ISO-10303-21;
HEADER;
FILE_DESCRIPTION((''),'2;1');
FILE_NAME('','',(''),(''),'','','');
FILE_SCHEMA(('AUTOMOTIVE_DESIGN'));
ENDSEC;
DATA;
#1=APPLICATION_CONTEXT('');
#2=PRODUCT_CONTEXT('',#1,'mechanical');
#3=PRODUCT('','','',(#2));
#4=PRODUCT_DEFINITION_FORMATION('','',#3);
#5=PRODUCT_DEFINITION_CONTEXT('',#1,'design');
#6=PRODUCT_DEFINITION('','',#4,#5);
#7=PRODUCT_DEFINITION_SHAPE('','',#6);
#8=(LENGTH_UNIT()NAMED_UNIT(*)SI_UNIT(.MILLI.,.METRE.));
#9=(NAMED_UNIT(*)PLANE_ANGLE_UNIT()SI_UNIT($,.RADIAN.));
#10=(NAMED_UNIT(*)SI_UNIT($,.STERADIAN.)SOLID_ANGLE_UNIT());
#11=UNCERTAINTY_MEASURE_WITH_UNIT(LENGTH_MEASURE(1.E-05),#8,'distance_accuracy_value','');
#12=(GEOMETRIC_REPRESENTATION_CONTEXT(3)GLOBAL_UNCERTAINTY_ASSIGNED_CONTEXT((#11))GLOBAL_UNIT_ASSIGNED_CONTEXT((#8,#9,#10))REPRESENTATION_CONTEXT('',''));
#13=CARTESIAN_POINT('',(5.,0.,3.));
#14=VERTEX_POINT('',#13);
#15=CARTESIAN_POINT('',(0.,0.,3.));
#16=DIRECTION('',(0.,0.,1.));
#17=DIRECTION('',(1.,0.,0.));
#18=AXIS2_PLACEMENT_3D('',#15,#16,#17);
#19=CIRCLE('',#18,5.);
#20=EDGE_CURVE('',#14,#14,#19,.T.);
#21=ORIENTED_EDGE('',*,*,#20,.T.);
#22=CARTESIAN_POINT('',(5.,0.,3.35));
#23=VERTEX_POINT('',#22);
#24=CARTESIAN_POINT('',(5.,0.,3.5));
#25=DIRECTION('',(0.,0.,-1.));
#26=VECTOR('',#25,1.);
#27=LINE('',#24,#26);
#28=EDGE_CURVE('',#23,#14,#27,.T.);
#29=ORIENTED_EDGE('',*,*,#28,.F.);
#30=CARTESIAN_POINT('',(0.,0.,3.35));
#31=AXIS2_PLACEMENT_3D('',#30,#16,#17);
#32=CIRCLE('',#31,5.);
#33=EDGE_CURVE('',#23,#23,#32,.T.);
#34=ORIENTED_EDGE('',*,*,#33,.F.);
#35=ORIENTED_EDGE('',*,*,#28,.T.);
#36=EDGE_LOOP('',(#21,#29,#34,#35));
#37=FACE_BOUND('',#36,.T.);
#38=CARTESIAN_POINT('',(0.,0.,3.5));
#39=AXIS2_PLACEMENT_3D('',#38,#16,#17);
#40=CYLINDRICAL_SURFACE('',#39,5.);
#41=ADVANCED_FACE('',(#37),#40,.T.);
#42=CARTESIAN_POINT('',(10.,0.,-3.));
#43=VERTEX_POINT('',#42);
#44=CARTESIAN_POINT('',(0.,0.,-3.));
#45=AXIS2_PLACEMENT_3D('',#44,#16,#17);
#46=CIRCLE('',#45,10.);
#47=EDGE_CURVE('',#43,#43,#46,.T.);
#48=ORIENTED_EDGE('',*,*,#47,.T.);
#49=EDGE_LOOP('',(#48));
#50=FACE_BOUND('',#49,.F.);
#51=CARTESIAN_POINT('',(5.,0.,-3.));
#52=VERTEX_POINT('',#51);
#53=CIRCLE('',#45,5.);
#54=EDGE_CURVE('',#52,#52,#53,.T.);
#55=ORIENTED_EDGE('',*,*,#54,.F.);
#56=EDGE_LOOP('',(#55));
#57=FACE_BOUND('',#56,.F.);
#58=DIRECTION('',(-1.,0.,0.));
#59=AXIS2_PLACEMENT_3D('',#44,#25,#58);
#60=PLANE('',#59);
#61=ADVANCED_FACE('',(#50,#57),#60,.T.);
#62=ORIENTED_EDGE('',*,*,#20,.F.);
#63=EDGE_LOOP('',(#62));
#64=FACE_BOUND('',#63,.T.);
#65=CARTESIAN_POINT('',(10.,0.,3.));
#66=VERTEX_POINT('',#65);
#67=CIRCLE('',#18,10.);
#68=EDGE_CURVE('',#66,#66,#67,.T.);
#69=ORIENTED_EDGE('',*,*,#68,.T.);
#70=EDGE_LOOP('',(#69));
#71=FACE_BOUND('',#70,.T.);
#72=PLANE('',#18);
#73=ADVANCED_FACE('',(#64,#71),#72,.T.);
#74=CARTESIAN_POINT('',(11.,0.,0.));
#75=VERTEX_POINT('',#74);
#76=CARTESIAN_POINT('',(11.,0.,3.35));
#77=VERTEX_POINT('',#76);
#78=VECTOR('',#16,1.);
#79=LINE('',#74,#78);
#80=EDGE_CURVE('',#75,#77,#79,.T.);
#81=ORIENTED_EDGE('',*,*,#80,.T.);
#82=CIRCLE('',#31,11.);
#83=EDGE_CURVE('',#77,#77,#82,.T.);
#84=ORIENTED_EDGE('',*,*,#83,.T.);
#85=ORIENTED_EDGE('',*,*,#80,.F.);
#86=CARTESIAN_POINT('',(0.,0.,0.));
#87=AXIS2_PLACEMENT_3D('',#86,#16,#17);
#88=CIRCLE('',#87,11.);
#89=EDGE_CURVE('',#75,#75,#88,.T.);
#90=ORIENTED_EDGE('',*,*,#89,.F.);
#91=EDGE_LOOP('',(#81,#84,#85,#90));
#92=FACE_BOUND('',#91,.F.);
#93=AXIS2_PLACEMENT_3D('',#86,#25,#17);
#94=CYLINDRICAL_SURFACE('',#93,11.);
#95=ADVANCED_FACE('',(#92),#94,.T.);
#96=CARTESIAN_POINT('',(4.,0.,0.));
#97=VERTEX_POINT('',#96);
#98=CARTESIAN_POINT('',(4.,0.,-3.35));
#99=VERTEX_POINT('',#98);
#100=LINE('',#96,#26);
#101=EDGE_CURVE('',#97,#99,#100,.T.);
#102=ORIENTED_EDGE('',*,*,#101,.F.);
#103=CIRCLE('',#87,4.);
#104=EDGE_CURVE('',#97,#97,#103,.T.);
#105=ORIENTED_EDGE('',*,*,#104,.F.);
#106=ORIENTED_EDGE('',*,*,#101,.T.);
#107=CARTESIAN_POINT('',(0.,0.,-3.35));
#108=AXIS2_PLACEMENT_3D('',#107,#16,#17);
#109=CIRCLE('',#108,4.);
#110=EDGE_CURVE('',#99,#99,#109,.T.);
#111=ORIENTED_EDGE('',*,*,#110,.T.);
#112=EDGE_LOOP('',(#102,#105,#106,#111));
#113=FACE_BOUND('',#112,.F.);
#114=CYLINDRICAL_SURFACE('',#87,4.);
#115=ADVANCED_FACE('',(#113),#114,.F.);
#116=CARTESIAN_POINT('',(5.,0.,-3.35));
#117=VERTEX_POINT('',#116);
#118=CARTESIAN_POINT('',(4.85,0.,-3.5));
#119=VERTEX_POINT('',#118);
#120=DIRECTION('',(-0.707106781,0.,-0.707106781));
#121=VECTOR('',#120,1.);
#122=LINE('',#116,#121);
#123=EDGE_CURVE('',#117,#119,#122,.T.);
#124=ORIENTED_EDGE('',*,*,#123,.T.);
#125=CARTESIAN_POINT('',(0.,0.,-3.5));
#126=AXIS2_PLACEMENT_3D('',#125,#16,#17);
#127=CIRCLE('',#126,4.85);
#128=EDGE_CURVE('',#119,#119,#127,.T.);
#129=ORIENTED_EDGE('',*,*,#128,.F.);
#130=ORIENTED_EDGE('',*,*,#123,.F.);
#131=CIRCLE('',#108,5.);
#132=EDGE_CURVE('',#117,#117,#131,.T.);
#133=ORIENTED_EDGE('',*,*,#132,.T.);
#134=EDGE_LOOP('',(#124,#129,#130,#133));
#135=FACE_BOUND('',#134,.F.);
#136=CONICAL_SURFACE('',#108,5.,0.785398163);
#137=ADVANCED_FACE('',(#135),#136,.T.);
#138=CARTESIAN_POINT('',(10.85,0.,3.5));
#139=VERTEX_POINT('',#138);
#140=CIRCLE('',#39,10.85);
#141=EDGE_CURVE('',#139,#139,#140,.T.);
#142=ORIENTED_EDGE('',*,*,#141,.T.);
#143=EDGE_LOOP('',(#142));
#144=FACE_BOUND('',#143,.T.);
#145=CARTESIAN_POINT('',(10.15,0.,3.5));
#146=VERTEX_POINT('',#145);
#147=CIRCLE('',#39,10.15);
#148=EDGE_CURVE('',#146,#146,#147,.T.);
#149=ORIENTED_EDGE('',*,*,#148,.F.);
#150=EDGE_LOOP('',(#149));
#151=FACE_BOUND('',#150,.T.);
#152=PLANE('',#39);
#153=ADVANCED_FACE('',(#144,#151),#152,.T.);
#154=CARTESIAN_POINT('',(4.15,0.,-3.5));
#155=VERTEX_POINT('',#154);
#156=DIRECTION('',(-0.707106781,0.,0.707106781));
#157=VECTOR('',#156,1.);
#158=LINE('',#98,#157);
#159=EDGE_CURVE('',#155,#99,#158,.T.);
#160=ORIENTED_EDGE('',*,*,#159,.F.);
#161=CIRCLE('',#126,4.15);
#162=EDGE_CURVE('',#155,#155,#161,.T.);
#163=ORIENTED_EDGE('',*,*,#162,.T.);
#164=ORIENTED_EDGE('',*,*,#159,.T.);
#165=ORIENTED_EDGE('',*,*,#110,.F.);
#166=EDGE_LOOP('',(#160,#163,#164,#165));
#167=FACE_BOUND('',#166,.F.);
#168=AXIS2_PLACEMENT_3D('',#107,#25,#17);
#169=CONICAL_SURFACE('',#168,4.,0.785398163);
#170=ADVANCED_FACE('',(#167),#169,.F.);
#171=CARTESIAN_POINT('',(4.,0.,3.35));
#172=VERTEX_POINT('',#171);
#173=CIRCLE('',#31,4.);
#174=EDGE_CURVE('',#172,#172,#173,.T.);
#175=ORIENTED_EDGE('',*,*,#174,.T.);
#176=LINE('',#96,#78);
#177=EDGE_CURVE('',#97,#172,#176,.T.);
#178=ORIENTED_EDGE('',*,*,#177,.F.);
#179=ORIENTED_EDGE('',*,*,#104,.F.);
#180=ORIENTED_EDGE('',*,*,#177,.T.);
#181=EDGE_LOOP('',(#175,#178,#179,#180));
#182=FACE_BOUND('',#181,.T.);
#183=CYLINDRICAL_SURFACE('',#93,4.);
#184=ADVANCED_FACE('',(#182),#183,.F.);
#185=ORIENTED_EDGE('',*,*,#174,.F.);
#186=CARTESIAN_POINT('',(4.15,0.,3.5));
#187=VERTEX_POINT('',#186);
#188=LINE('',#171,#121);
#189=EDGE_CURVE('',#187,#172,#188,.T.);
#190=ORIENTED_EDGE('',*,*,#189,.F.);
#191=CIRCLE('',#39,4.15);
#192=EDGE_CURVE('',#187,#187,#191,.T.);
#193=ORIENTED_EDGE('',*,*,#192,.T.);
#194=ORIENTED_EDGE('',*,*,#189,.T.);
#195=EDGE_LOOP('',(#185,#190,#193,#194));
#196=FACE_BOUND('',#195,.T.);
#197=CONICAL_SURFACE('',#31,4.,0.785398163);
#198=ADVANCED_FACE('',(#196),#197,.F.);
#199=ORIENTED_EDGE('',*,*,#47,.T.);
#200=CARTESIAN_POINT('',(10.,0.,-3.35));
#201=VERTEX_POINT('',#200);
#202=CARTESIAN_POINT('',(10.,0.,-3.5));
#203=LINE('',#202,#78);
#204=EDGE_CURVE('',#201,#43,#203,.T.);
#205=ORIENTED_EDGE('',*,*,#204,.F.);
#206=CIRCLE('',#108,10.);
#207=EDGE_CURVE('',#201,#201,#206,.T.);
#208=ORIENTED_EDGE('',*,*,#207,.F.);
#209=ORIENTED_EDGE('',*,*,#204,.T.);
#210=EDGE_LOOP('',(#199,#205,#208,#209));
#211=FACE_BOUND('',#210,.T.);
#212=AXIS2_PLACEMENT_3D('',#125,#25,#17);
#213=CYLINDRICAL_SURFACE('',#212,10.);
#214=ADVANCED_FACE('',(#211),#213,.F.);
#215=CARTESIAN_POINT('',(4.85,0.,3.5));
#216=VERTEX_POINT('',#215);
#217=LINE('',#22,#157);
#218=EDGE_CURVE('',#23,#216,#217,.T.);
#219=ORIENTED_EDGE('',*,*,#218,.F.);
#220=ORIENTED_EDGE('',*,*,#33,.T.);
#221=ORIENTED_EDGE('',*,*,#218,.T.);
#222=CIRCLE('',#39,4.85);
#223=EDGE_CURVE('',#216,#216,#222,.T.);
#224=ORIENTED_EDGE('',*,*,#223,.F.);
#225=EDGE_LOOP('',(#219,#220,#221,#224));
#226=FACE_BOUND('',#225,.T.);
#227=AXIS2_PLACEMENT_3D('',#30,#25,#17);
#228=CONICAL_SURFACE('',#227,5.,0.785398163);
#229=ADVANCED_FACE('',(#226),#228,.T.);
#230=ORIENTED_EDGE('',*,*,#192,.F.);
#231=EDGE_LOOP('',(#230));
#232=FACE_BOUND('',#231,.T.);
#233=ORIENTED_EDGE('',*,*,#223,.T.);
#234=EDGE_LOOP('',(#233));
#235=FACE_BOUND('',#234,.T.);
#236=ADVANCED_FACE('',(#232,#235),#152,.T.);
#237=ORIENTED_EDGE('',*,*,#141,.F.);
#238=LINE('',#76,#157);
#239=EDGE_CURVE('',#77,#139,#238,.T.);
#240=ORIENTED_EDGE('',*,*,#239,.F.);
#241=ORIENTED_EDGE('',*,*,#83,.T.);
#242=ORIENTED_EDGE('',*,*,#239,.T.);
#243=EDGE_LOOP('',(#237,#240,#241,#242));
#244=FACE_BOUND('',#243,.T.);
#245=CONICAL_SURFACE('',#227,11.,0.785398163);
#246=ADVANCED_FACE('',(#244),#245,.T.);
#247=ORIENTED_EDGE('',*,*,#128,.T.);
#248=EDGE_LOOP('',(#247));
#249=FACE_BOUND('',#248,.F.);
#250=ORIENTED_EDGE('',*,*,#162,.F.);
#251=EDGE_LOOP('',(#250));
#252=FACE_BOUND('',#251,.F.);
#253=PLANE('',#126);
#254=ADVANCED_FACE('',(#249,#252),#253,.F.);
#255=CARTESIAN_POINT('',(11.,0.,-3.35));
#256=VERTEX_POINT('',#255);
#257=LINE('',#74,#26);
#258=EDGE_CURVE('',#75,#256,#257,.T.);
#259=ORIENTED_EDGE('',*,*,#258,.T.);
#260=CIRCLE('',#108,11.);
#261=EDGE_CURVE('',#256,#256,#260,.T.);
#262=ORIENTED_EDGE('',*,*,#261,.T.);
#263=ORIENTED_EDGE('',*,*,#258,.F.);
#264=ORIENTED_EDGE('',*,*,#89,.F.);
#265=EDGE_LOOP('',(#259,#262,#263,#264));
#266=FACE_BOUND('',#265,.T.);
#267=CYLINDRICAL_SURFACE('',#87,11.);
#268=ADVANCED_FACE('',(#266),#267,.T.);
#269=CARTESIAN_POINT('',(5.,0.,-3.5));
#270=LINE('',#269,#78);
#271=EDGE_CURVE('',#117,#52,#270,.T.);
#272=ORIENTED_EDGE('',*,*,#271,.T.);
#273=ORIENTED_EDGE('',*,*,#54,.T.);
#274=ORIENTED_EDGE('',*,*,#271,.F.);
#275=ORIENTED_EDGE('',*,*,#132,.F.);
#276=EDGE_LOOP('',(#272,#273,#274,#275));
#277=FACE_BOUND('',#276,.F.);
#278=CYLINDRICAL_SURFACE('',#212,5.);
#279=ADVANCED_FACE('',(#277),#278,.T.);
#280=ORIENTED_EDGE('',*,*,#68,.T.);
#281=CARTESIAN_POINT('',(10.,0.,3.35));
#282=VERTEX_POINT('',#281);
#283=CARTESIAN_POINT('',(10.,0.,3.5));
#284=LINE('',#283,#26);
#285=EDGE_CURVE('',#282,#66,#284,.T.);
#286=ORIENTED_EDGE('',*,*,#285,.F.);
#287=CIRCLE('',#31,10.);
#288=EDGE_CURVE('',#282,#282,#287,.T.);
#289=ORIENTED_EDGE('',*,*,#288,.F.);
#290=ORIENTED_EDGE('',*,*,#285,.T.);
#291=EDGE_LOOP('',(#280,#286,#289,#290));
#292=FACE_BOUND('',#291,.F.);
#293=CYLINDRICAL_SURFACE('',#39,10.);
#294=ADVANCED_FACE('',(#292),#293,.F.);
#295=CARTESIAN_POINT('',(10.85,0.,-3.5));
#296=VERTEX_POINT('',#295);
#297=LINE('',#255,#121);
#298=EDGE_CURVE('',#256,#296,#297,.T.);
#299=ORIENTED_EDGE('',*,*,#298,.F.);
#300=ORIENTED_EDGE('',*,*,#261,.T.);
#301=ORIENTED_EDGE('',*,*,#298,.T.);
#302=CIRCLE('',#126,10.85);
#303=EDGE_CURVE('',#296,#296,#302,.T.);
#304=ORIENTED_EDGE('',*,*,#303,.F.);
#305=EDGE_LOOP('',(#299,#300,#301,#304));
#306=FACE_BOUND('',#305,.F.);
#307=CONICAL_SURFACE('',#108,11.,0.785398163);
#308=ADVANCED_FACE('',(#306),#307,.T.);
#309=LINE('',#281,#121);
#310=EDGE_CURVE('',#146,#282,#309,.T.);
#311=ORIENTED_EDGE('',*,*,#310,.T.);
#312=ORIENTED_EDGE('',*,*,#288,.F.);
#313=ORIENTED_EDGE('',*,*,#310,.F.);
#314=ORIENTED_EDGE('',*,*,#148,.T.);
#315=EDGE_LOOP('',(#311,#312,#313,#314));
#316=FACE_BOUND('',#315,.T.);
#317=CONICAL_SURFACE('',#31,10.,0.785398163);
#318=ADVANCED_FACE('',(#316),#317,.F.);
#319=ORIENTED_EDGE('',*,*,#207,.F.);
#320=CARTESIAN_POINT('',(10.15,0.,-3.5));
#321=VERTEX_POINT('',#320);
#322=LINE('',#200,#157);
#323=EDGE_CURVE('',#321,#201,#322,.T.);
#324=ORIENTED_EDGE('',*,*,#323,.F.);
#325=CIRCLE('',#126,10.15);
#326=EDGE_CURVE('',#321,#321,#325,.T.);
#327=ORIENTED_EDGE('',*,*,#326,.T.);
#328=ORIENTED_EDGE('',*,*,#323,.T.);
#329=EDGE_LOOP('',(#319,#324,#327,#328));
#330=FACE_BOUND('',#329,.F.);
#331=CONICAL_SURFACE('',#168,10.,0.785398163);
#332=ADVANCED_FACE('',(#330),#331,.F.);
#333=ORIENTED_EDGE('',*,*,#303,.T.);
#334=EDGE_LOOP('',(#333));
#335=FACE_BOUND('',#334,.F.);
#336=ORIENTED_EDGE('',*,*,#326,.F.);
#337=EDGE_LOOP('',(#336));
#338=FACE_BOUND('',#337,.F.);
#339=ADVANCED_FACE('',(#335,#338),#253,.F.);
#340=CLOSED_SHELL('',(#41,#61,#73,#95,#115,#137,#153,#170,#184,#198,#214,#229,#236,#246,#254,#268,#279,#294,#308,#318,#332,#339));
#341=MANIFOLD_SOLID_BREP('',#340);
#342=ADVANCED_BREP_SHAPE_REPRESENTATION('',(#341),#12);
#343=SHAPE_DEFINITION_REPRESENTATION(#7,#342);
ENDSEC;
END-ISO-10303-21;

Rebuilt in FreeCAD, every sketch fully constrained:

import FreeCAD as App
import Part
import Sketcher
Q = App.Units.Quantity


def edges_at(feature, points):
    """Names of the edges that pass closest to the given points."""
    edges = feature.Shape.Edges
    near = lambda p: min(range(len(edges)), key=lambda i: edges[i].distToShape(Part.Vertex(*p))[0])
    return sorted({f"Edge{near(p) + 1}" for p in points})

doc = App.newDocument("Part")
body = doc.addObject("PartDesign::Body", "Body")

sketch1 = body.newObject("Sketcher::SketchObject", "Sketch")
sketch1.AttachmentSupport = (doc.getObject("XY_Plane"), [""])
sketch1.MapMode = "FlatFace"
sketch1.addGeometry([
    Part.Circle(App.Vector(0, 0, 0), App.Vector(0, 0, 1), 11),
    Part.Circle(App.Vector(0, 0, 0), App.Vector(0, 0, 1), 4),
], False)
sketch1.addConstraint([
    Sketcher.Constraint("Coincident", 0, 3, -1, 1),
    Sketcher.Constraint("Coincident", 1, 3, -1, 1),
    Sketcher.Constraint("Diameter", 0, Q("22 mm")),
    Sketcher.Constraint("Diameter", 1, Q("8 mm")),
])
pad1 = body.newObject("PartDesign::Pad", "Pad")
pad1.Profile = sketch1
pad1.Length = 7
pad1.Midplane = True

sketch2 = body.newObject("Sketcher::SketchObject", "Sketch001")
sketch2.AttachmentSupport = (doc.getObject("XY_Plane"), [""])
sketch2.MapMode = "FlatFace"
sketch2.AttachmentOffset = App.Placement(App.Vector(0, 0, 3.5), App.Rotation())
sketch2.addGeometry([
    Part.Circle(App.Vector(0, 0, 0), App.Vector(0, 0, 1), 10),
    Part.Circle(App.Vector(0, 0, 0), App.Vector(0, 0, 1), 5),
], False)
sketch2.addConstraint([
    Sketcher.Constraint("Coincident", 0, 3, -1, 1),
    Sketcher.Constraint("Coincident", 1, 3, -1, 1),
    Sketcher.Constraint("Diameter", 0, Q("20 mm")),
    Sketcher.Constraint("Diameter", 1, Q("10 mm")),
])
pocket1 = body.newObject("PartDesign::Pocket", "Pocket")
pocket1.Profile = sketch2
pocket1.Length = 0.5
doc.recompute()

mirrored = body.newObject("PartDesign::Mirrored", "Mirrored")
mirrored.Originals = [pocket1]
mirrored.MirrorPlane = (doc.getObject("XY_Plane"), [""])
body.Tip = mirrored
doc.recompute()

chamfer = body.newObject("PartDesign::Chamfer", "Chamfer")
chamfer.Base = (mirrored, edges_at(mirrored, [
    (-11, 0, 3.5),
    (-11, 0, -3.5),
    (-10, 0, 3.5),
    (-5, 0, 3.5),
    (-4, 0, 3.5),
    (-10, 0, -3.5),
    (-5, 0, -3.5),
    (-4, 0, -3.5),
]))
chamfer.Size = 0.15

doc.recompute()
